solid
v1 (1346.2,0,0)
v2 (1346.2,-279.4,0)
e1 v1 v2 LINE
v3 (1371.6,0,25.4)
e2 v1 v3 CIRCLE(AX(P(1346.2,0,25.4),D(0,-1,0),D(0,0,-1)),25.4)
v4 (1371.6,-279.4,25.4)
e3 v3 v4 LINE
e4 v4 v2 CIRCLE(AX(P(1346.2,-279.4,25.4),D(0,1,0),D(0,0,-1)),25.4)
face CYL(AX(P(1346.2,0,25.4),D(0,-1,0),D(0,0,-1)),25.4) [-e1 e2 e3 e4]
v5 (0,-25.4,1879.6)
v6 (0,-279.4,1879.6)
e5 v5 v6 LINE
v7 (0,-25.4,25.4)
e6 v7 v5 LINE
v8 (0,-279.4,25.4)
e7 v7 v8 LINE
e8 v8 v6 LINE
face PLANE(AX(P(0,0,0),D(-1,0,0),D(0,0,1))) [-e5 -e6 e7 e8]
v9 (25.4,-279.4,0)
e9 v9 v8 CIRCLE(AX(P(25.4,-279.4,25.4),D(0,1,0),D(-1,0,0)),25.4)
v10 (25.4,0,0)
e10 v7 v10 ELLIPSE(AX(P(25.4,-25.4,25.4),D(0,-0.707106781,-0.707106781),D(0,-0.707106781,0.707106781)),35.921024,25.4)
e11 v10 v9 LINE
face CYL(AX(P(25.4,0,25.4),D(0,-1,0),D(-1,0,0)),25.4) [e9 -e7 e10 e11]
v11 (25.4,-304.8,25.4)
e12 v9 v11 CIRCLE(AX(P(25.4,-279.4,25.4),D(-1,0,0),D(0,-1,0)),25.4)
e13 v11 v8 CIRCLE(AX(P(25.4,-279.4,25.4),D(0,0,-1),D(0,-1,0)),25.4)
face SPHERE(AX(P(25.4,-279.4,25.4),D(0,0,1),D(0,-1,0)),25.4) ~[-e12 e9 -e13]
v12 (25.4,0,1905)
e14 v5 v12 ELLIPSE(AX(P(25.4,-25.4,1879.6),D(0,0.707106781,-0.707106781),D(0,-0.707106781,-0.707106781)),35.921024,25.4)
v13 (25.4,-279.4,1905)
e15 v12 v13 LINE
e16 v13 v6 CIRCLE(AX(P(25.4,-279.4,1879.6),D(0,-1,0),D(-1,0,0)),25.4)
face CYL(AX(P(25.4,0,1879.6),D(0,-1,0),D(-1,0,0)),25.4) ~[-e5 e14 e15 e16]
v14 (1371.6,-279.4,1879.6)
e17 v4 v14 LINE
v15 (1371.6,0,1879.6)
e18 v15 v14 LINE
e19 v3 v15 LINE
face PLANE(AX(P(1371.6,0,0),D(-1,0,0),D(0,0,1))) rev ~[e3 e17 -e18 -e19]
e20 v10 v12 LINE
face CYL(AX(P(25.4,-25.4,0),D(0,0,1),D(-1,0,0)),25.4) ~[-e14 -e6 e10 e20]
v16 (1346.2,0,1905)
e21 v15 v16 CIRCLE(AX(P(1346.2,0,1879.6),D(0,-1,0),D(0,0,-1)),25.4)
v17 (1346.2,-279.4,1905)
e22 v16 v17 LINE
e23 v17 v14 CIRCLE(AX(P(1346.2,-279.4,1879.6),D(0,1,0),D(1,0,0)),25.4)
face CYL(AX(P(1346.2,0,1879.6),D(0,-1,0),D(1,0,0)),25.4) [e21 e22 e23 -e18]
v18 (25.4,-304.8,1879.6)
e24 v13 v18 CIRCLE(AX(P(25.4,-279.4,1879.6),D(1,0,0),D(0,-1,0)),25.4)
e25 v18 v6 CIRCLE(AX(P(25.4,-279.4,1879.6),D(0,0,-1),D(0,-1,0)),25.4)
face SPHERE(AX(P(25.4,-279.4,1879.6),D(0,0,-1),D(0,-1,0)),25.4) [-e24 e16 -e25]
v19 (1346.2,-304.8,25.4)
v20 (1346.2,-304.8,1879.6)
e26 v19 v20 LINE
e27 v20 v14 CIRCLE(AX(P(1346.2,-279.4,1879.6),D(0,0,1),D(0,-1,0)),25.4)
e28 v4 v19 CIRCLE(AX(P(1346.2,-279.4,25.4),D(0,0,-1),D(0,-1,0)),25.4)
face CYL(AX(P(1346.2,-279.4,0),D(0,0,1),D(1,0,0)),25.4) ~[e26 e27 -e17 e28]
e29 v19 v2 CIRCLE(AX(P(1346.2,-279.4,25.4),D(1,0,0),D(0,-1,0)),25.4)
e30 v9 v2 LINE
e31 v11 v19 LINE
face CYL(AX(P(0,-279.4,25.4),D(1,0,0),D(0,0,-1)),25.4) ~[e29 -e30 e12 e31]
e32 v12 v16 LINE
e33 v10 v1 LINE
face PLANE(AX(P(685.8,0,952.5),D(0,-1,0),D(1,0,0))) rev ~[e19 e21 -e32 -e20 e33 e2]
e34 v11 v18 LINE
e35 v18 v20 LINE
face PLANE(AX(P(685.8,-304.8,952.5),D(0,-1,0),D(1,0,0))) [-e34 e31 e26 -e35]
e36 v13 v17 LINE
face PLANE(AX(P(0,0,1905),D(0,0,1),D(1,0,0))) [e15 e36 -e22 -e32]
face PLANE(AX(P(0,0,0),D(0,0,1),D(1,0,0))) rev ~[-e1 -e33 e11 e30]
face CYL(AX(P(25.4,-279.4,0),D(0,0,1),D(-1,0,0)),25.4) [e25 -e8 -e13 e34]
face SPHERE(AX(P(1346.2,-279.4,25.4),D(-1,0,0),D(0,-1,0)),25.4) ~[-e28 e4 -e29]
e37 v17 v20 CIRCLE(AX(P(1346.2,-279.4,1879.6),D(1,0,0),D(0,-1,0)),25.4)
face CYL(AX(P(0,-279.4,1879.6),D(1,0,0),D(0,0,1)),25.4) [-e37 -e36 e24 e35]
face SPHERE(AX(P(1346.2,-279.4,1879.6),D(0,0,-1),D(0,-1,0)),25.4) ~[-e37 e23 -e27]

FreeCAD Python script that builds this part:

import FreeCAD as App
import Part
import Sketcher
Q = App.Units.Quantity


def edges_at(feature, points):
    """Names of the edges that pass closest to the given points."""
    edges = feature.Shape.Edges
    near = lambda p: min(range(len(edges)), key=lambda i: edges[i].distToShape(Part.Vertex(*p))[0])
    return sorted({f"Edge{near(p) + 1}" for p in points})

doc = App.newDocument("Part")
body = doc.addObject("PartDesign::Body", "Body")

# Sketch on XZ plane
sketch1 = body.newObject("Sketcher::SketchObject", "Sketch")
sketch1.AttachmentSupport = (doc.getObject("XZ_Plane"), [""])
sketch1.MapMode = "FlatFace"
sketch1.addGeometry(Part.LineSegment(App.Vector(0, 1905, 0), App.Vector(0, 0, 0)), False)
sketch1.addGeometry(Part.LineSegment(App.Vector(0, 0, 0), App.Vector(1372, 0, 0)), False)
sketch1.addGeometry(Part.LineSegment(App.Vector(1372, 0, 0), App.Vector(1372, 1905, 0)), False)
sketch1.addGeometry(Part.LineSegment(App.Vector(1372, 1905, 0), App.Vector(0, 1905, 0)), False)
sketch1.addConstraint(Sketcher.Constraint("Coincident", 0, 2, 1, 1))
sketch1.addConstraint(Sketcher.Constraint("Coincident", 1, 2, 2, 1))
sketch1.addConstraint(Sketcher.Constraint("Coincident", 2, 2, 3, 1))
sketch1.addConstraint(Sketcher.Constraint("Coincident", 3, 2, 0, 1))
sketch1.addConstraint(Sketcher.Constraint("Vertical", 0))
sketch1.addConstraint(Sketcher.Constraint("Horizontal", 1))
sketch1.addConstraint(Sketcher.Constraint("Vertical", 2))
sketch1.addConstraint(Sketcher.Constraint("Horizontal", 3))
sketch1.addConstraint(Sketcher.Constraint("Coincident", 0, 2, -1, 1))
sketch1.addConstraint(Sketcher.Constraint("DistanceX", 1, 1, 1, 2, Q("54 in")))
sketch1.addConstraint(Sketcher.Constraint("DistanceY", 0, 2, 0, 1, Q("75 in")))
pad1 = body.newObject("PartDesign::Pad", "Pad")
pad1.Profile = sketch1
pad1.Length = Q("12 in")
doc.recompute()

fillet = body.newObject("PartDesign::Fillet", "Fillet")
fillet.Base = (pad1, edges_at(pad1, [
    (0, -304.8, 952.5),
    (685.8, -304.8, 0),
    (1371.6, -304.8, 952.5),
    (685.8, -304.8, 1905),
    (1371.6, -152.4, 0),
    (0, -152.4, 0),
    (0, -152.4, 1905),
    (0, 0, 952.5),
    (1371.6, -152.4, 1905),
]))
fillet.Radius = Q("1 in")

doc.recompute()
